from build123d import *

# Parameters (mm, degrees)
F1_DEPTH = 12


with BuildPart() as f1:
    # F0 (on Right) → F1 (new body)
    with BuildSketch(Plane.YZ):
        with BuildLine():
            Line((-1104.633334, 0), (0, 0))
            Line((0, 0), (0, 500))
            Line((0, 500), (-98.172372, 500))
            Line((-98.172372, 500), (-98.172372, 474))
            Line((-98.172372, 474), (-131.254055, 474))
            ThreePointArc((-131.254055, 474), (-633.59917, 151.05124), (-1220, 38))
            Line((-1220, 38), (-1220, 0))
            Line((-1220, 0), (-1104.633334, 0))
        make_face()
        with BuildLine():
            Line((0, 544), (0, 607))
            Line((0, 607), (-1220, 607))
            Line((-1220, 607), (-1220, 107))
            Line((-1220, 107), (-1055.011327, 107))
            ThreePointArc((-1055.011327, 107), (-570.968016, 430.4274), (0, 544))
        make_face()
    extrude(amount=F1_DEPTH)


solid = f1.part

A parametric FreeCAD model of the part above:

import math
import FreeCAD as App
import Part
import Sketcher

V = App.Vector

doc = App.newDocument("Part")
body = doc.addObject("PartDesign::Body", "Body")
body.AllowCompound = True

# Sketch on YZ plane
sketch1 = body.newObject("Sketcher::SketchObject", "Sketch")
sketch1.AttachmentSupport = (doc.getObject("YZ_Plane"), [""])
sketch1.MapMode = "FlatFace"
sketch1.addGeometry([
    Part.LineSegment(V(0, 0, 0), V(0, 500, 0)),  # 0
    Part.LineSegment(V(0, 500, 0), V(-98, 500, 0)),  # 1
    Part.LineSegment(V(-98, 500, 0), V(-98, 474, 0)),  # 2
    Part.LineSegment(V(-98, 474, 0), V(-131, 474, 0)),  # 3
    Part.ArcOfCircle(Part.Circle(V(-1220, 1615, 0), V(0, 0, 1), 1577), math.radians(-90), math.radians(-46)),  # 4
    Part.LineSegment(V(-1220, 38, 0), V(-1220, 0, 0)),  # 5
    Part.LineSegment(V(-1220, 0, 0), V(0, 0, 0)),  # 6
    Part.LineSegment(V(0, 544, 0), V(0, 607, 0)),  # 7
    Part.LineSegment(V(0, 607, 0), V(-1220, 607, 0)),  # 8
    Part.LineSegment(V(-1220, 607, 0), V(-1220, 107, 0)),  # 9
    Part.LineSegment(V(-1220, 107, 0), V(-1055, 107, 0)),  # 10
    Part.ArcOfCircle(Part.Circle(V(0, -948, 0), V(0, 0, 1), 1492), math.radians(90), math.radians(135)),  # 11
], False)
sketch1.addConstraint([
    Sketcher.Constraint("Coincident", 0, 2, 1, 1),
    Sketcher.Constraint("Coincident", 1, 2, 2, 1),
    Sketcher.Constraint("Coincident", 2, 2, 3, 1),
    Sketcher.Constraint("Coincident", 3, 2, 4, 2),
    Sketcher.Constraint("Coincident", 4, 1, 5, 1),
    Sketcher.Constraint("Coincident", 5, 2, 6, 1),
    Sketcher.Constraint("Coincident", 6, 2, 0, 1),
    Sketcher.Constraint("Coincident", 7, 2, 8, 1),
    Sketcher.Constraint("Coincident", 8, 2, 9, 1),
    Sketcher.Constraint("Coincident", 9, 2, 10, 1),
    Sketcher.Constraint("Coincident", 10, 2, 11, 2),
    Sketcher.Constraint("Coincident", 11, 1, 7, 1),
    Sketcher.Constraint("Vertical", 0),
    Sketcher.Constraint("Horizontal", 1),
    Sketcher.Constraint("Vertical", 2),
    Sketcher.Constraint("Horizontal", 3),
    Sketcher.Constraint("Vertical", 5),
    Sketcher.Constraint("Horizontal", 6),
    Sketcher.Constraint("Vertical", 7),
    Sketcher.Constraint("Horizontal", 8),
    Sketcher.Constraint("Vertical", 9),
    Sketcher.Constraint("Horizontal", 10),
    Sketcher.Constraint("Coincident", 6, 2, -1, 1),
    Sketcher.Constraint("PointOnObject", 11, 3, -2),
    Sketcher.Constraint("PointOnObject", 7, 2, -2),
    Sketcher.Constraint("Vertical", 5, 2, 8, 2),
    Sketcher.Constraint("Equal", 0, 9),
    Sketcher.Constraint("DistanceX", 6, 1, 6, 2, 1220.0),
    Sketcher.Constraint("DistanceY", 0, 1, 0, 2, 500.0),
    Sketcher.Constraint("DistanceY", 2, 2, 2, 1, 26.0),
    Sketcher.Constraint("DistanceY", 5, 2, 5, 1, 38.0),
    Sketcher.Constraint("DistanceY", 7, 1, 7, 2, 63.0),
    Sketcher.Constraint("DistanceY", -1, 1, 7, 2, 607.0),
    Sketcher.Constraint("DistanceX", 4, 3, 11, 3, 1219.999999),
    Sketcher.Constraint("Radius", 4, 1577.366661),
    Sketcher.Constraint("Radius", 11, 1492.01133),
    Sketcher.Constraint("DistanceX", 1, 2, 1, 1, 98.172372),
])
pad1 = body.newObject("PartDesign::Pad", "Pad")
pad1.Profile = sketch1
pad1.Length = 12

doc.recompute()
